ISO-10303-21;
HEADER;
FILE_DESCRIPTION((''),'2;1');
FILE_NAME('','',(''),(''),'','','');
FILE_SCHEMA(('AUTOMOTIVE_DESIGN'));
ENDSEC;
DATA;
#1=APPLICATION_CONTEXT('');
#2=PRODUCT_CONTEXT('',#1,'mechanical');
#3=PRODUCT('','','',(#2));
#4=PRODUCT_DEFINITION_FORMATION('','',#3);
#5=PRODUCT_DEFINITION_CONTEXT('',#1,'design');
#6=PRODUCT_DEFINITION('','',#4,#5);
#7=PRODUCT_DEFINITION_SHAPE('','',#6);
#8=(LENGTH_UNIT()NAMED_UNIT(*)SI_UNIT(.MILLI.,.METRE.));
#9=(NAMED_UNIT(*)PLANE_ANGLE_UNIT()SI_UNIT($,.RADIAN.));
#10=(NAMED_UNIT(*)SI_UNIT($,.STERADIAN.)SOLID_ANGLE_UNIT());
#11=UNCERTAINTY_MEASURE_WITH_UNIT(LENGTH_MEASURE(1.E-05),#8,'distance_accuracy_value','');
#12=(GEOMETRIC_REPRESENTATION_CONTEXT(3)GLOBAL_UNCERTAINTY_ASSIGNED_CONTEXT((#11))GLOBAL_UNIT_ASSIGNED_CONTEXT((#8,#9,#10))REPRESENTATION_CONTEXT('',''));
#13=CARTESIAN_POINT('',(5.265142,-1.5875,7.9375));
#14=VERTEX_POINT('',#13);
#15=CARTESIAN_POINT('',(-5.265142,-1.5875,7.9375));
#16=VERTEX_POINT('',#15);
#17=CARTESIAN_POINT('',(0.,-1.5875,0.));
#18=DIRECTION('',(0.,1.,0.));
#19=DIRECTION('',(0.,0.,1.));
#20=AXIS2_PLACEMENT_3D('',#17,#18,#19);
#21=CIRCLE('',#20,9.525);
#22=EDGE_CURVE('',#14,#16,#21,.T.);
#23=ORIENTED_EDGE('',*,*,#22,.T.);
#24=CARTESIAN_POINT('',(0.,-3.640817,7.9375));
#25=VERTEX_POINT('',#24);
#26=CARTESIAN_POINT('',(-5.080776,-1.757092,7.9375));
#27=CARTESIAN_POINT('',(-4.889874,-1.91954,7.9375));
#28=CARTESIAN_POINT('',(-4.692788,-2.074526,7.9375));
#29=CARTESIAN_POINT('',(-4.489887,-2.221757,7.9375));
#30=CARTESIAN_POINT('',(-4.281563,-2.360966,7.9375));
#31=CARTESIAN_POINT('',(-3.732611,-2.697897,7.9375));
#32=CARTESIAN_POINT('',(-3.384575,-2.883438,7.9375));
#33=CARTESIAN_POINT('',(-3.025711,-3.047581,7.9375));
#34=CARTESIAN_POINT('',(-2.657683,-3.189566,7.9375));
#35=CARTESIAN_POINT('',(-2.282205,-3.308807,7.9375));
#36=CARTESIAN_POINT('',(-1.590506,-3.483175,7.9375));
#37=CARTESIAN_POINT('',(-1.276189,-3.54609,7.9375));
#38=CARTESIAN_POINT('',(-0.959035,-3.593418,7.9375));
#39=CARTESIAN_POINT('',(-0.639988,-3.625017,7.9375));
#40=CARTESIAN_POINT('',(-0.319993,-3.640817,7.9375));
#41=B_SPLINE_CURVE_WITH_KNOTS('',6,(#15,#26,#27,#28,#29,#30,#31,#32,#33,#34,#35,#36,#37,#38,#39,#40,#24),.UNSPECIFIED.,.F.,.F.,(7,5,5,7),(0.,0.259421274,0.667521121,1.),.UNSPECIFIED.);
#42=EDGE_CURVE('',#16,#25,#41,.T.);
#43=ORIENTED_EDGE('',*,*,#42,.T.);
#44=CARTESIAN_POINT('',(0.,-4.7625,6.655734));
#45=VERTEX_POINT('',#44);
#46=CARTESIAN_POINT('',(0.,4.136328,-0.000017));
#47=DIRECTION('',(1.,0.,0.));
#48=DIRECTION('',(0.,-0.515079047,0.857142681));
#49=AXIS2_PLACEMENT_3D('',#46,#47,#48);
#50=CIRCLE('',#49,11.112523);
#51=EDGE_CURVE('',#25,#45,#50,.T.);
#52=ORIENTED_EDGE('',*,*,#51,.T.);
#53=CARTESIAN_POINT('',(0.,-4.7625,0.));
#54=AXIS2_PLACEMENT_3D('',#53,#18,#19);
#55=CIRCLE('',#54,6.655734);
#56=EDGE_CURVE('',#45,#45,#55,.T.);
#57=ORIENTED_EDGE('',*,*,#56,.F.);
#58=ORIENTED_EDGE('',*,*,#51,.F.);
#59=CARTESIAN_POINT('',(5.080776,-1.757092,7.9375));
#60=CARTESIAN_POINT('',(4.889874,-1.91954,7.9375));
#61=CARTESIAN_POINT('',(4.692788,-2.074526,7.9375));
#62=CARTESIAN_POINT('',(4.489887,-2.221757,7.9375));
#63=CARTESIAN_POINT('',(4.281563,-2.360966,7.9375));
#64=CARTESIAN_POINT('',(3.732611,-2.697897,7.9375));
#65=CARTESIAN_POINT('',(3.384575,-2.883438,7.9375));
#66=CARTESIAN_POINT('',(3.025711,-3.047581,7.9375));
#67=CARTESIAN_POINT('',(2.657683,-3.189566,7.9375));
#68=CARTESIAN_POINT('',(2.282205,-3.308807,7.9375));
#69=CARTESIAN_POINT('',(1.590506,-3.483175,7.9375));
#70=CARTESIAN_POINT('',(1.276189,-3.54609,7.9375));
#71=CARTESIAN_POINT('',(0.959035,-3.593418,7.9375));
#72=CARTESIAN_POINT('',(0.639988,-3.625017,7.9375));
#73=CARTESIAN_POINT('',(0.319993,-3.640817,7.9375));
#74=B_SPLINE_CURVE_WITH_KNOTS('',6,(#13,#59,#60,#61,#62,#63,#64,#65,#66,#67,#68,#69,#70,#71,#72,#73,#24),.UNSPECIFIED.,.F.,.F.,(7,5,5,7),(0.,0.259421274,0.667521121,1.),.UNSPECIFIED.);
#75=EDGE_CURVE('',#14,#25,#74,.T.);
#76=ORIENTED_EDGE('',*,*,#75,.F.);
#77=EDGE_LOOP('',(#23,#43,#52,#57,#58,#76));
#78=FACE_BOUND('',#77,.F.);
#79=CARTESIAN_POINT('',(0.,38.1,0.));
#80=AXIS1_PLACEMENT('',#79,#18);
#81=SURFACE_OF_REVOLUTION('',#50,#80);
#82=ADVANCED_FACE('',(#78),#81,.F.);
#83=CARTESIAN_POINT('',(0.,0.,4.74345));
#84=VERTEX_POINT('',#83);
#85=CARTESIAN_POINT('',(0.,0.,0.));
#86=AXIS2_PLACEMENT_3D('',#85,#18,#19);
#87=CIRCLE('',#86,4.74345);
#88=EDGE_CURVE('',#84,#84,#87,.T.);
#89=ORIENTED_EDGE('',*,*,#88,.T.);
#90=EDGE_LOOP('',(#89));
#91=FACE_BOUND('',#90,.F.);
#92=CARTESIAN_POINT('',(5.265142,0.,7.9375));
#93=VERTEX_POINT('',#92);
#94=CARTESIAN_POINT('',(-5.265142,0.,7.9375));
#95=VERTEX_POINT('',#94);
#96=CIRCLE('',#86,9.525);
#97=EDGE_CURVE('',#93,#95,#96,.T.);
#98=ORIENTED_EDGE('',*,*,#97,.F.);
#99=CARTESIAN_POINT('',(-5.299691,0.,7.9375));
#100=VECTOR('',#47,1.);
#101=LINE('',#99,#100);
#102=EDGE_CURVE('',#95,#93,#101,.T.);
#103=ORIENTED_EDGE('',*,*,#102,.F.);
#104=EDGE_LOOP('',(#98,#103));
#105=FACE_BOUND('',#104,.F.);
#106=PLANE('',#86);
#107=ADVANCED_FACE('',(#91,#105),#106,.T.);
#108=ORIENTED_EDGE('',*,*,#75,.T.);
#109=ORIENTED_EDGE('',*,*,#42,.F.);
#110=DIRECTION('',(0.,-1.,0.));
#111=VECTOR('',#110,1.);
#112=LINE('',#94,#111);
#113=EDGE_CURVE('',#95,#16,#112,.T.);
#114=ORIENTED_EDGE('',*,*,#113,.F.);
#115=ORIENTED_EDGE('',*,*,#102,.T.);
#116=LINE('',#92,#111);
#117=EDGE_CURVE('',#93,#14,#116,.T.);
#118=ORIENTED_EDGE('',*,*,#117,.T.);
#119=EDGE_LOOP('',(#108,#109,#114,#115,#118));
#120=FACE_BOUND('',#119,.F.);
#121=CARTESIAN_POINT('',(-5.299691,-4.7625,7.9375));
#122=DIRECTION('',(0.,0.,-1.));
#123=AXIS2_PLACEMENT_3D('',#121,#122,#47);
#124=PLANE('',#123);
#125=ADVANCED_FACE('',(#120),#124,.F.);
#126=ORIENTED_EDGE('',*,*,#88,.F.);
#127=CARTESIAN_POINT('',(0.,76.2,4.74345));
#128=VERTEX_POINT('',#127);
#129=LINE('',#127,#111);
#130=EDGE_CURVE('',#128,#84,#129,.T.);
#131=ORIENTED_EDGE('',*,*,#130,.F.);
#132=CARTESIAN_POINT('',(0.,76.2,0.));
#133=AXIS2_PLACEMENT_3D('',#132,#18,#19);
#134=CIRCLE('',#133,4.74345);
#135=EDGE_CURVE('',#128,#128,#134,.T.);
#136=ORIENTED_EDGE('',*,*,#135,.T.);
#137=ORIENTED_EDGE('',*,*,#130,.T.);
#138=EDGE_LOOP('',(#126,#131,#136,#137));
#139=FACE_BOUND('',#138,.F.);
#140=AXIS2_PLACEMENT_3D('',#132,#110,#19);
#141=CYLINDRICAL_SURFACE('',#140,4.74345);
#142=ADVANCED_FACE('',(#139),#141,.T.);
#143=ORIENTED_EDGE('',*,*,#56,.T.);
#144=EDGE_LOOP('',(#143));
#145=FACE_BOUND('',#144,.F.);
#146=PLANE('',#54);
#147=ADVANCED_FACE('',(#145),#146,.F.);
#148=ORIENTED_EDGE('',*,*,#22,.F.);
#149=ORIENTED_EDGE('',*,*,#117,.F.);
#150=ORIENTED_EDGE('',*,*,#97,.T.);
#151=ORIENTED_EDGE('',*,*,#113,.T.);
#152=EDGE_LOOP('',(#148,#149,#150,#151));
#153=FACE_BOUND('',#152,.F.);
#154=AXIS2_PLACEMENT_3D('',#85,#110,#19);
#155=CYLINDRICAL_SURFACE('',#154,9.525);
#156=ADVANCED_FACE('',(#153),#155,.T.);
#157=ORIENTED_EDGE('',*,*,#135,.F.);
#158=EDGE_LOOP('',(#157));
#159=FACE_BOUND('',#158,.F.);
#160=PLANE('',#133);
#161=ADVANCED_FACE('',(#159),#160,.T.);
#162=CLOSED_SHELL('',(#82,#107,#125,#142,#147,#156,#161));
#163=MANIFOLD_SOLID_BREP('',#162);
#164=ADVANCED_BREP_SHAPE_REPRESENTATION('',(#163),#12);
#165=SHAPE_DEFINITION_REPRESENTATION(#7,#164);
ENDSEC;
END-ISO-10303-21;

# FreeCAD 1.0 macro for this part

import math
import FreeCAD as App
import Part
import Sketcher

V = App.Vector
Q = App.Units.Quantity

doc = App.newDocument("Part")
body = doc.addObject("PartDesign::Body", "Body")

# Sketch on YZ plane
sketch1 = body.newObject("Sketcher::SketchObject", "Sketch")
sketch1.AttachmentSupport = (doc.getObject("YZ_Plane"), [""])
sketch1.MapMode = "FlatFace"
sketch1.addGeometry(Part.LineSegment(V(76.2, 0, 0), V(76.2, 4.74345, 0)), False)
sketch1.addGeometry(Part.LineSegment(V(76.2, 4.74345, 0), V(0, 4.74345, 0)), False)
sketch1.addGeometry(Part.LineSegment(V(0, 4.74345, 0), V(0, 9.525, 0)), False)
sketch1.addGeometry(Part.LineSegment(V(0, 9.525, 0), V(-1.5875, 9.525, 0)), False)
sketch1.addGeometry(Part.ArcOfCircle(Part.Circle(V(4.136328, -0.000017, 0), V(0, 0, 1), 11.112523), math.radians(121.002739), math.radians(143.205871)), False)
sketch1.addGeometry(Part.LineSegment(V(-4.7625, 6.655734, 0), V(-4.7625, 0, 0)), False)
sketch1.addGeometry(Part.LineSegment(V(-4.7625, 0, 0), V(76.2, 0, 0)), False)
sketch1.addConstraint(Sketcher.Constraint("Coincident", 0, 2, 1, 1))
sketch1.addConstraint(Sketcher.Constraint("Coincident", 1, 2, 2, 1))
sketch1.addConstraint(Sketcher.Constraint("Coincident", 2, 2, 3, 1))
sketch1.addConstraint(Sketcher.Constraint("Coincident", 3, 2, 4, 1))
sketch1.addConstraint(Sketcher.Constraint("Coincident", 4, 2, 5, 1))
sketch1.addConstraint(Sketcher.Constraint("Coincident", 5, 2, 6, 1))
sketch1.addConstraint(Sketcher.Constraint("Coincident", 6, 2, 0, 1))
sketch1.addConstraint(Sketcher.Constraint("Vertical", 0))
sketch1.addConstraint(Sketcher.Constraint("Horizontal", 1))
sketch1.addConstraint(Sketcher.Constraint("Vertical", 2))
sketch1.addConstraint(Sketcher.Constraint("Horizontal", 3))
sketch1.addConstraint(Sketcher.Constraint("Vertical", 5))
sketch1.addConstraint(Sketcher.Constraint("Horizontal", 6))
sketch1.addConstraint(Sketcher.Constraint("PointOnObject", 1, 2, -2))
sketch1.addConstraint(Sketcher.Constraint("PointOnObject", 5, 2, -1))
sketch1.addConstraint(Sketcher.Constraint("DistanceX", 1, 2, 1, 1, Q("3 in")))
sketch1.addConstraint(Sketcher.Constraint("DistanceX", 3, 2, 3, 1, Q("0.0625 in")))
sketch1.addConstraint(Sketcher.Constraint("DistanceX", 6, 1, 6, 2, Q("3.1875 in")))
sketch1.addConstraint(Sketcher.Constraint("DistanceY", -1, 1, 2, 2, Q("0.375 in")))
sketch1.addConstraint(Sketcher.Constraint("Radius", 4, Q("11.112523 mm")))
sketch1.addConstraint(Sketcher.Constraint("DistanceY", 0, 1, 0, 2, Q("4.74345 mm")))
sketch1.addConstraint(Sketcher.Constraint("DistanceY", 5, 2, 5, 1, Q("6.655734 mm")))
revolution = body.newObject("PartDesign::Revolution", "Revolution")
revolution.Profile = sketch1
revolution.ReferenceAxis = (sketch1, ["H_Axis"])
revolution.Angle = 360

# Sketch on XZ plane
sketch2 = body.newObject("Sketcher::SketchObject", "Sketch001")
sketch2.AttachmentSupport = (doc.getObject("XZ_Plane"), [""])
sketch2.MapMode = "FlatFace"
sketch2.AttachmentOffset = App.Placement(V(0, 0, 0.1875 * 25.4), App.Rotation())
sketch2.addGeometry(Part.ArcOfCircle(Part.Circle(V(0, -0.000001, 0), V(0, 0, 1), 9.544142), math.radians(56.269855), math.radians(123.730145)), False)
sketch2.addGeometry(Part.LineSegment(V(-5.299691, 7.9375, 0), V(5.299691, 7.9375, 0)), False)
sketch2.addConstraint(Sketcher.Constraint("Coincident", 0, 1, 1, 2))
sketch2.addConstraint(Sketcher.Constraint("Coincident", 1, 1, 0, 2))
sketch2.addConstraint(Sketcher.Constraint("Horizontal", 1))
sketch2.addConstraint(Sketcher.Constraint("Coincident", 0, 3, -1, 1))
sketch2.addConstraint(Sketcher.Constraint("DistanceY", -1, 1, 0, 1, Q("0.3125 in")))
sketch2.addConstraint(Sketcher.Constraint("Radius", 0, Q("9.544142 mm")))
pocket1 = body.newObject("PartDesign::Pocket", "Pocket")
pocket1.Profile = sketch2
pocket1.Length = Q("0.1875 in")

doc.recompute()
